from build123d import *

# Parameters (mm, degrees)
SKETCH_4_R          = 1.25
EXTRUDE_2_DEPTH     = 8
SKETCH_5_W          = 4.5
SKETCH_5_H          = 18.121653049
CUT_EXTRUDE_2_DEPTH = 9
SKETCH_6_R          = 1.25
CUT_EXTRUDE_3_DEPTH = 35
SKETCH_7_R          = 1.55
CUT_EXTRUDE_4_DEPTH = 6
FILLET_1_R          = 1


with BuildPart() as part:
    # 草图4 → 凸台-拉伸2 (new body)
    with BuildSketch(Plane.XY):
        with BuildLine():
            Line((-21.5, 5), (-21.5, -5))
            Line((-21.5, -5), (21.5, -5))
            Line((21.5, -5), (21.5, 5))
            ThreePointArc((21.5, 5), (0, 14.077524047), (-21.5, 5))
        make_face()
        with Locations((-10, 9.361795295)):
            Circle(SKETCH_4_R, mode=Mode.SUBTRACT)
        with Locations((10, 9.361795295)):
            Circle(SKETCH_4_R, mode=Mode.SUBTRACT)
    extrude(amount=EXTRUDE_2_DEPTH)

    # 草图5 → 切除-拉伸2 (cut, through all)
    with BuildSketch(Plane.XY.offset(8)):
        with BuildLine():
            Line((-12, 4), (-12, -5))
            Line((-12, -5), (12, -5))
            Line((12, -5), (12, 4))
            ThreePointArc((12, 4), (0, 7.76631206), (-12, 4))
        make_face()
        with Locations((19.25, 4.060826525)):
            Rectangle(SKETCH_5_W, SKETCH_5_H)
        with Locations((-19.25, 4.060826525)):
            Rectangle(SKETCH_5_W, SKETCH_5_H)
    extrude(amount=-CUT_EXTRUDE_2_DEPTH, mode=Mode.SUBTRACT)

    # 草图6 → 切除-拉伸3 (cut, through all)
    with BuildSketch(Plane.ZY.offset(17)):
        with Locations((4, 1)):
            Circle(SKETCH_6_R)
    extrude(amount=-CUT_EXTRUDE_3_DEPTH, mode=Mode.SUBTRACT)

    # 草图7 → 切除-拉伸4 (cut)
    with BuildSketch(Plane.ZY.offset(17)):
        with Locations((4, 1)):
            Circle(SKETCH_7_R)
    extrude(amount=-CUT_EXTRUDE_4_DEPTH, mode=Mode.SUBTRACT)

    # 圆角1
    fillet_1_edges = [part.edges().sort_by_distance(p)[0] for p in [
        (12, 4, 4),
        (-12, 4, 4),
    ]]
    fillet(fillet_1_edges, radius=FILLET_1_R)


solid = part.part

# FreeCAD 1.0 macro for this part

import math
import FreeCAD as App
import Part
import Sketcher
Q = App.Units.Quantity


def edges_at(feature, points):
    """Names of the edges that pass closest to the given points."""
    edges = feature.Shape.Edges
    near = lambda p: min(range(len(edges)), key=lambda i: edges[i].distToShape(Part.Vertex(*p))[0])
    return sorted({f"Edge{near(p) + 1}" for p in points})

doc = App.newDocument("Part")
params = doc.addObject("Spreadsheet::Sheet", "Params")
for row, (alias, value) in enumerate([
    ("sketch1_radius", "30 mm"),
    ("sketch1_diameter", "2.5 mm"),
    ("sketch1_width", "43 mm"),
    ("sketch1_height", "10 mm"),
    ("pad1_length", "8 mm"),
    ("sketch2_radius", "21 mm"),
    ("sketch2_width", "24 mm"),
    ("sketch2_height", "9 mm"),
    ("sketch2_width2", "4.5 mm"),
    ("sketch3_diameter", "2.5 mm"),
    ("sketch4_diameter", "3.1 mm"),
    ("pocket3_length", "6 mm"),
    ("fillet_radius", "1 mm"),
], start=1):
    params.set(f"A{row}", alias)
    params.set(f"B{row}", "=" + value)
    params.setAlias(f"B{row}", alias)

body = doc.addObject("PartDesign::Body", "Body")

# Sketch on XY plane
sketch1 = body.newObject("Sketcher::SketchObject", "Sketch")
sketch1.AttachmentSupport = (doc.getObject("XY_Plane"), [""])
sketch1.MapMode = "FlatFace"
sketch1.addGeometry([
    Part.LineSegment(App.Vector(-21.5, 5, 0), App.Vector(-21.5, -5, 0)),  # 0
    Part.LineSegment(App.Vector(-21.5, -5, 0), App.Vector(21.5, -5, 0)),  # 1
    Part.LineSegment(App.Vector(21.5, -5, 0), App.Vector(21.5, 5, 0)),  # 2
    Part.ArcOfCircle(Part.Circle(App.Vector(0, -15.9, 0), App.Vector(0, 0, 1), 30), math.radians(44), math.radians(136)),  # 3
    Part.Circle(App.Vector(-10, 9.4, 0), App.Vector(0, 0, 1), 1.2),  # 4
    Part.Circle(App.Vector(10, 9.4, 0), App.Vector(0, 0, 1), 1.2),  # 5
], False)
sketch1.addConstraint([
    Sketcher.Constraint("Coincident", 0, 2, 1, 1),
    Sketcher.Constraint("Coincident", 1, 2, 2, 1),
    Sketcher.Constraint("Coincident", 2, 2, 3, 1),
    Sketcher.Constraint("Coincident", 3, 2, 0, 1),
    Sketcher.Constraint("Vertical", 0),
    Sketcher.Constraint("Horizontal", 1),
    Sketcher.Constraint("Vertical", 2),
    Sketcher.Constraint("Equal", 4, 5),
    Sketcher.Constraint("Symmetric", 0, 2, 2, 2, -1, 1),
    Sketcher.Constraint("Symmetric", 4, 3, 5, 3, -2),
    Sketcher.Constraint("PointOnObject", 3, 3, -2),
    Sketcher.Constraint("Radius", 3, Q("30 mm")),
    Sketcher.Constraint("Diameter", 4, Q("2.5 mm")),
    Sketcher.Constraint("DistanceX", 1, 1, 1, 2, Q("43 mm")),
    Sketcher.Constraint("DistanceY", 0, 2, 0, 1, Q("10 mm")),
    Sketcher.Constraint("DistanceX", 4, 3, -1, 1, Q("10 mm")),
    Sketcher.Constraint("DistanceY", 3, 3, 4, 3, Q("25.284271 mm")),
])
sketch1.setExpression("Constraints[11]", "Params.sketch1_radius")
sketch1.setExpression("Constraints[12]", "Params.sketch1_diameter")
sketch1.setExpression("Constraints[13]", "Params.sketch1_width")
sketch1.setExpression("Constraints[14]", "Params.sketch1_height")
pad1 = body.newObject("PartDesign::Pad", "Pad")
pad1.Profile = sketch1
pad1.setExpression("Length", "Params.pad1_length")

# Sketch on XY plane
sketch2 = body.newObject("Sketcher::SketchObject", "Sketch001")
sketch2.AttachmentSupport = (doc.getObject("XY_Plane"), [""])
sketch2.MapMode = "FlatFace"
sketch2.AttachmentOffset = App.Placement(App.Vector(0, 0, 8), App.Rotation())
sketch2.addGeometry([
    Part.LineSegment(App.Vector(-12, 4, 0), App.Vector(-12, -5, 0)),  # 0
    Part.LineSegment(App.Vector(-12, -5, 0), App.Vector(12, -5, 0)),  # 1
    Part.LineSegment(App.Vector(12, -5, 0), App.Vector(12, 4, 0)),  # 2
    Part.ArcOfCircle(Part.Circle(App.Vector(0, -13.2, 0), App.Vector(0, 0, 1), 21), math.radians(55), math.radians(125)),  # 3
    Part.LineSegment(App.Vector(17, 13.1, 0), App.Vector(17, -5, 0)),  # 4
    Part.LineSegment(App.Vector(17, -5, 0), App.Vector(21.5, -5, 0)),  # 5
    Part.LineSegment(App.Vector(21.5, -5, 0), App.Vector(21.5, 13.1, 0)),  # 6
    Part.LineSegment(App.Vector(21.5, 13.1, 0), App.Vector(17, 13.1, 0)),  # 7
    Part.LineSegment(App.Vector(-21.5, 13.1, 0), App.Vector(-21.5, -5, 0)),  # 8
    Part.LineSegment(App.Vector(-21.5, -5, 0), App.Vector(-17, -5, 0)),  # 9
    Part.LineSegment(App.Vector(-17, -5, 0), App.Vector(-17, 13.1, 0)),  # 10
    Part.LineSegment(App.Vector(-17, 13.1, 0), App.Vector(-21.5, 13.1, 0)),  # 11
], False)
sketch2.addConstraint([
    Sketcher.Constraint("Coincident", 0, 2, 1, 1),
    Sketcher.Constraint("Coincident", 1, 2, 2, 1),
    Sketcher.Constraint("Coincident", 2, 2, 3, 1),
    Sketcher.Constraint("Coincident", 3, 2, 0, 1),
    Sketcher.Constraint("Coincident", 4, 2, 5, 1),
    Sketcher.Constraint("Coincident", 5, 2, 6, 1),
    Sketcher.Constraint("Coincident", 6, 2, 7, 1),
    Sketcher.Constraint("Coincident", 7, 2, 4, 1),
    Sketcher.Constraint("Coincident", 8, 2, 9, 1),
    Sketcher.Constraint("Coincident", 9, 2, 10, 1),
    Sketcher.Constraint("Coincident", 10, 2, 11, 1),
    Sketcher.Constraint("Coincident", 11, 2, 8, 1),
    Sketcher.Constraint("Vertical", 0),
    Sketcher.Constraint("Horizontal", 1),
    Sketcher.Constraint("Vertical", 2),
    Sketcher.Constraint("Vertical", 4),
    Sketcher.Constraint("Horizontal", 5),
    Sketcher.Constraint("Vertical", 6),
    Sketcher.Constraint("Horizontal", 7),
    Sketcher.Constraint("Vertical", 8),
    Sketcher.Constraint("Horizontal", 9),
    Sketcher.Constraint("Vertical", 10),
    Sketcher.Constraint("Horizontal", 11),
    Sketcher.Constraint("Symmetric", 2, 2, 3, 2, -2),
    Sketcher.Constraint("Symmetric", 5, 2, 8, 2, -2),
    Sketcher.Constraint("Symmetric", 7, 2, 10, 2, -2),
    Sketcher.Constraint("Horizontal", 1, 2, 4, 2),
    Sketcher.Constraint("Radius", 3, Q("21 mm")),
    Sketcher.Constraint("DistanceX", 1, 1, 1, 2, Q("24 mm")),
    Sketcher.Constraint("DistanceY", 0, 2, 0, 1, Q("9 mm")),
    Sketcher.Constraint("DistanceX", 5, 1, 5, 2, Q("4.5 mm")),
    Sketcher.Constraint("DistanceY", 0, 2, -1, 1, Q("5 mm")),
    Sketcher.Constraint("DistanceX", -1, 1, 4, 2, Q("17 mm")),
    Sketcher.Constraint("DistanceY", 4, 2, 4, 1, Q("18.121653 mm")),
])
sketch2.setExpression("Constraints[27]", "Params.sketch2_radius")
sketch2.setExpression("Constraints[28]", "Params.sketch2_width")
sketch2.setExpression("Constraints[29]", "Params.sketch2_height")
sketch2.setExpression("Constraints[30]", "Params.sketch2_width2")
pocket1 = body.newObject("PartDesign::Pocket", "Pocket")
pocket1.Profile = sketch2
pocket1.Type = "ThroughAll"

# Sketch on YZ plane
sketch3 = body.newObject("Sketcher::SketchObject", "Sketch002")
sketch3.AttachmentSupport = (doc.getObject("YZ_Plane"), [""])
sketch3.MapMode = "FlatFace"
sketch3.AttachmentOffset = App.Placement(App.Vector(0, 0, -17), App.Rotation())
sketch3.addGeometry(Part.Circle(App.Vector(1, 4, 0), App.Vector(0, 0, 1), 1.2), False)
sketch3.addConstraint([
    Sketcher.Constraint("Diameter", 0, Q("2.5 mm")),
    Sketcher.Constraint("DistanceX", -1, 1, 0, 3, Q("1 mm")),
    Sketcher.Constraint("DistanceY", -1, 1, 0, 3, Q("4 mm")),
])
sketch3.setExpression("Constraints[0]", "Params.sketch3_diameter")
pocket2 = body.newObject("PartDesign::Pocket", "Pocket001")
pocket2.Profile = sketch3
pocket2.Type = "ThroughAll"
pocket2.Reversed = True

# Sketch on YZ plane
sketch4 = body.newObject("Sketcher::SketchObject", "Sketch003")
sketch4.AttachmentSupport = (doc.getObject("YZ_Plane"), [""])
sketch4.MapMode = "FlatFace"
sketch4.AttachmentOffset = App.Placement(App.Vector(0, 0, -17), App.Rotation())
sketch4.addGeometry(Part.Circle(App.Vector(1, 4, 0), App.Vector(0, 0, 1), 1.6), False)
sketch4.addConstraint([
    Sketcher.Constraint("Diameter", 0, Q("3.1 mm")),
    Sketcher.Constraint("DistanceX", -1, 1, 0, 3, Q("1 mm")),
    Sketcher.Constraint("DistanceY", -1, 1, 0, 3, Q("4 mm")),
])
sketch4.setExpression("Constraints[0]", "Params.sketch4_diameter")
pocket3 = body.newObject("PartDesign::Pocket", "Pocket002")
pocket3.Profile = sketch4
pocket3.setExpression("Length", "Params.pocket3_length")
pocket3.Reversed = True
doc.recompute()

fillet = body.newObject("PartDesign::Fillet", "Fillet")
fillet.Base = (pocket3, edges_at(pocket3, [(12, 4, 4), (-12, 4, 4)]))
fillet.setExpression("Radius", "Params.fillet_radius")

doc.recompute()
